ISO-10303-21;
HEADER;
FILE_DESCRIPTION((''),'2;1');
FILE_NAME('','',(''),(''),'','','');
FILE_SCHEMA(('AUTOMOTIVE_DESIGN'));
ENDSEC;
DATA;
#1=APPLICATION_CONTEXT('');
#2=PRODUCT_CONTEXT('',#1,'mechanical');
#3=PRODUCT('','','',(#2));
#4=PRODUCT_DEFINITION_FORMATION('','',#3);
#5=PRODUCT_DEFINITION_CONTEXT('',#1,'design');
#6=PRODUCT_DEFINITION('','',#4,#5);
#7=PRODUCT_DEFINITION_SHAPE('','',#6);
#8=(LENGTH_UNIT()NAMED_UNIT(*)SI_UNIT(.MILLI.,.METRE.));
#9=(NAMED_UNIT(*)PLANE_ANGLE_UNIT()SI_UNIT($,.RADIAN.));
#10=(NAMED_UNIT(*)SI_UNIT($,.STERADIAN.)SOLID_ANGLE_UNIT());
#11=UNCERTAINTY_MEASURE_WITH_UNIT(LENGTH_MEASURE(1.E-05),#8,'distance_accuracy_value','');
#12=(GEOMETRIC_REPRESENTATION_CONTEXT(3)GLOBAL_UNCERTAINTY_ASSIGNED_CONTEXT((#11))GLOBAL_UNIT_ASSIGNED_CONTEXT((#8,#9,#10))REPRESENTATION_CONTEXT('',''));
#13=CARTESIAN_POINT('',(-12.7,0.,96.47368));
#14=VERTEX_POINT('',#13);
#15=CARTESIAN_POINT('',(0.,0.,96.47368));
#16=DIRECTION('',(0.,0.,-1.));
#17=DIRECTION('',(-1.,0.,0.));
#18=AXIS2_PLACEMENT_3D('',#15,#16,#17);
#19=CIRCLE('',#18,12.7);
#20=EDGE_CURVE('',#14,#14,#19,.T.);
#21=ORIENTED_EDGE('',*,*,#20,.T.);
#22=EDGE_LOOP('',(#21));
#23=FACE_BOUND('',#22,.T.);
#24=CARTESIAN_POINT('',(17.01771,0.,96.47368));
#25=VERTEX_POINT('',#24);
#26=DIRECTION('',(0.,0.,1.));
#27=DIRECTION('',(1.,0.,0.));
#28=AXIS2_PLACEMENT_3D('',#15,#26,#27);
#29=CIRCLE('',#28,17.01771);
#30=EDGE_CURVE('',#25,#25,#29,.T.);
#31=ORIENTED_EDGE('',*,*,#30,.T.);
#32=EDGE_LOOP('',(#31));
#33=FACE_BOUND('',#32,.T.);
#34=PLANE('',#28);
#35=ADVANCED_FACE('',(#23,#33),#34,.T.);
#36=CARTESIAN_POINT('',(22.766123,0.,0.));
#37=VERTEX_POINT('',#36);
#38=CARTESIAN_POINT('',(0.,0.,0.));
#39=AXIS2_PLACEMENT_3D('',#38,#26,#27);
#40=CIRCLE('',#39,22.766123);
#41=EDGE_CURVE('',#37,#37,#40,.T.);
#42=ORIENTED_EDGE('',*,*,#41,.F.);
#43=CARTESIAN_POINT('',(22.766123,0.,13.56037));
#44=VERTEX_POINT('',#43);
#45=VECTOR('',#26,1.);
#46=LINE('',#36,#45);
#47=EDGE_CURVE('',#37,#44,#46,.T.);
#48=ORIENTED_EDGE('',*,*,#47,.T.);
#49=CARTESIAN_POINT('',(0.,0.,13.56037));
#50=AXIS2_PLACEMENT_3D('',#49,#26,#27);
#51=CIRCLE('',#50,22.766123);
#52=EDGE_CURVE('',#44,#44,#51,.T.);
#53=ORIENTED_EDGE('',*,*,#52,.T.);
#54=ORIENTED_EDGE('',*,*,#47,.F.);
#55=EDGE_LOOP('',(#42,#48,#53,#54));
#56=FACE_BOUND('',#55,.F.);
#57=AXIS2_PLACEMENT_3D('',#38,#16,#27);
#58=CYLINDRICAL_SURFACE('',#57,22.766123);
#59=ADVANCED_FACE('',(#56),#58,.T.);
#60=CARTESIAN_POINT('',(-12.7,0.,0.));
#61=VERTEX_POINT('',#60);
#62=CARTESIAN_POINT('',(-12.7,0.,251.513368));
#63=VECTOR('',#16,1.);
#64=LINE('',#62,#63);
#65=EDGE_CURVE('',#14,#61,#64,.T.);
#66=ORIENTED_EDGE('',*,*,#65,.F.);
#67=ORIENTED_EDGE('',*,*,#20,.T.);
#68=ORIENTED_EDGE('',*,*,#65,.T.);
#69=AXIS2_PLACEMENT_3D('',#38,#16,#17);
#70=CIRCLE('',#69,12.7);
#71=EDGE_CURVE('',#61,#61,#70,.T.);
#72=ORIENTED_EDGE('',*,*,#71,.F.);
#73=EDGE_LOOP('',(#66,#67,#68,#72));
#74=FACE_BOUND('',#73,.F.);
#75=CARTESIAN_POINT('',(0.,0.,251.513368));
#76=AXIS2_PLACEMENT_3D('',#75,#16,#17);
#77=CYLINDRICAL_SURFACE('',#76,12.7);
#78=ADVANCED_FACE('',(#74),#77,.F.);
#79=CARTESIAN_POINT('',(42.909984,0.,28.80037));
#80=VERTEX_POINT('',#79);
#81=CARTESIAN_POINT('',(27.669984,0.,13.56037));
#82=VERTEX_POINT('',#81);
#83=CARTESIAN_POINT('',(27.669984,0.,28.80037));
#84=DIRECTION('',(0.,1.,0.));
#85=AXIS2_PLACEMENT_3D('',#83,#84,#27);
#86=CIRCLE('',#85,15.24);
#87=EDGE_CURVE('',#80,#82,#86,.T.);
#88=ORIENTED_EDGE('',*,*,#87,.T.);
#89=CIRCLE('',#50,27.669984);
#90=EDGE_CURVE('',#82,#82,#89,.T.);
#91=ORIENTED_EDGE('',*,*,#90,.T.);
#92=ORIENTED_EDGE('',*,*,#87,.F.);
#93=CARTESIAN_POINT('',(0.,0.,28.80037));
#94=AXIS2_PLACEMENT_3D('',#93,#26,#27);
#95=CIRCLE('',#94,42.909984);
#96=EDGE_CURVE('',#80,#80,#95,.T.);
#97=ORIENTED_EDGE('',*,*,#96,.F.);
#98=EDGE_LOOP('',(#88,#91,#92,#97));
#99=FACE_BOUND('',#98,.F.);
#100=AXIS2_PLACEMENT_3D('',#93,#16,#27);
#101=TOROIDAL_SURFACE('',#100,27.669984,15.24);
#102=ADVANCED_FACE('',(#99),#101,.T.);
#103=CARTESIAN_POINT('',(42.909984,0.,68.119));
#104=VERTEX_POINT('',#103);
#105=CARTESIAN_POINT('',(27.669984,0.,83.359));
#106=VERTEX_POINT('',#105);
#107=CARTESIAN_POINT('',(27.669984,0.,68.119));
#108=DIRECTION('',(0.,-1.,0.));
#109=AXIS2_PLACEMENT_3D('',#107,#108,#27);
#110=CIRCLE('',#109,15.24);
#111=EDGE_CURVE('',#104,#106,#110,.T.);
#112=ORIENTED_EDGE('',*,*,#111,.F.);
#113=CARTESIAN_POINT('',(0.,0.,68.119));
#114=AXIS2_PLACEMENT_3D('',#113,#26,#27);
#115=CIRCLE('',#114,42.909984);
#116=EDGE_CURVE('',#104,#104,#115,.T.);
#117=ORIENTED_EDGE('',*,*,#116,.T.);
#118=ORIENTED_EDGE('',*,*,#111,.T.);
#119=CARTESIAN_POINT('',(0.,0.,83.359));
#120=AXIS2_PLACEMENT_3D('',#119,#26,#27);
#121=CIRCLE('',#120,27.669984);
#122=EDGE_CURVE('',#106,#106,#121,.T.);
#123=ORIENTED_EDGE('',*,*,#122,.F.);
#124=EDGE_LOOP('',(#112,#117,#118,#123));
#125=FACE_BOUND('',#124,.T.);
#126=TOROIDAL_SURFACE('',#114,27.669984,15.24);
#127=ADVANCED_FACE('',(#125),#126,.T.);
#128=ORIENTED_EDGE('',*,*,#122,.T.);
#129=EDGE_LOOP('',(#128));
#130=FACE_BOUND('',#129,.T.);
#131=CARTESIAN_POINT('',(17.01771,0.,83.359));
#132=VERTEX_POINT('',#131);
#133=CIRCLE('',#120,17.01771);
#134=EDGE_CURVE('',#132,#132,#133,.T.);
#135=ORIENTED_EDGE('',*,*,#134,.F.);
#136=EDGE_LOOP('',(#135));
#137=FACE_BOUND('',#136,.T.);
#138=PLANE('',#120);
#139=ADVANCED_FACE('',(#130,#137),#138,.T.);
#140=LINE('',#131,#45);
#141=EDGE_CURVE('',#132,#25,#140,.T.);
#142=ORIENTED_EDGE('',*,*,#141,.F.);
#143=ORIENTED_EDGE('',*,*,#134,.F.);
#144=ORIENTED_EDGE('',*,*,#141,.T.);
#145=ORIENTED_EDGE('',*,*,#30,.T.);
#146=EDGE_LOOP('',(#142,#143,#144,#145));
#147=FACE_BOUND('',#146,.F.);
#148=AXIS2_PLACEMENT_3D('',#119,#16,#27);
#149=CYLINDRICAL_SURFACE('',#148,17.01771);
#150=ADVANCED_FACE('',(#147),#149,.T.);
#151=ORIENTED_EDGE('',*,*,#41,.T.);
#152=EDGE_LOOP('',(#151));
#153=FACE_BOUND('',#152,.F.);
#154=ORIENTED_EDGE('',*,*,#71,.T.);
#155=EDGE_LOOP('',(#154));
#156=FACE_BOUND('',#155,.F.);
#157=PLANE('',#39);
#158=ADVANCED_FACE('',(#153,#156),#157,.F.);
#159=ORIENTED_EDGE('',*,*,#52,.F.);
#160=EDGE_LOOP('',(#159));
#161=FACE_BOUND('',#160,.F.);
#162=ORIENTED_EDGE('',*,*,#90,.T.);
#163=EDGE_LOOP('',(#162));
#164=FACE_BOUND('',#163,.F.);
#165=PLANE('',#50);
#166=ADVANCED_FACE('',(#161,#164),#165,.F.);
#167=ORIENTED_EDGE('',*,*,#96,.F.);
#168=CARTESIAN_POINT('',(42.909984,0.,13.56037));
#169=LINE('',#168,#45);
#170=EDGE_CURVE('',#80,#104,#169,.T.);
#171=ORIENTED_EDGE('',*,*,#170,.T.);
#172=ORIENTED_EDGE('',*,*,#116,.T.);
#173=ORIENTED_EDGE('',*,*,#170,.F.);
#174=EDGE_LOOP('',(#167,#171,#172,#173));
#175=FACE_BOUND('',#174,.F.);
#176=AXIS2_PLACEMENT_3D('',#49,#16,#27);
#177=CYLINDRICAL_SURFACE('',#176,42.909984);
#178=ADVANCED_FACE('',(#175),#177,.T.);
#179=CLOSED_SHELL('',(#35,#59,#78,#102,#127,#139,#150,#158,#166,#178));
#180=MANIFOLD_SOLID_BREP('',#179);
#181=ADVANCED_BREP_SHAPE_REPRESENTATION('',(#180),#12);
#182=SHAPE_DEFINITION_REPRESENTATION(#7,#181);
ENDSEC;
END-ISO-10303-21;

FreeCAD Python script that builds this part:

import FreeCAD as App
import Part
import Sketcher

V = App.Vector
Q = App.Units.Quantity


def edges_at(feature, points):
    """Names of the edges that pass closest to the given points."""
    edges = feature.Shape.Edges
    near = lambda p: min(range(len(edges)), key=lambda i: edges[i].distToShape(Part.Vertex(*p))[0])
    return sorted({f"Edge{near(p) + 1}" for p in points})

doc = App.newDocument("Part")
params = doc.addObject("Spreadsheet::Sheet", "Params")
for row, (alias, value) in enumerate([
    ("pad1_length", "13.56037 mm"),
    ("pad2_length", "69.79863 mm"),
    ("pad3_length", "13.11468 mm"),
    ("fillet_radius", "0.6 in"),
    ("sketch4_diameter", "1 in"),
    ("hole_diameter", "1 in"),
], start=1):
    params.set(f"A{row}", alias)
    params.set(f"B{row}", "=" + value)
    params.setAlias(f"B{row}", alias)

body = doc.addObject("PartDesign::Body", "Body")

sketch1 = body.newObject("Sketcher::SketchObject", "Sketch")
sketch1.AttachmentSupport = (doc.getObject("XY_Plane"), [""])
sketch1.MapMode = "FlatFace"
sketch1.addGeometry(Part.Circle(V(0, 0, 0), V(0, 0, 1), 22.766123), False)
sketch1.addConstraint(Sketcher.Constraint("Coincident", 0, 3, -1, 1))
sketch1.addConstraint(Sketcher.Constraint("Diameter", 0, 45.532246))
pad1 = body.newObject("PartDesign::Pad", "Pad")
pad1.Profile = sketch1
pad1.setExpression("Length", "Params.pad1_length")

sketch2 = body.newObject("Sketcher::SketchObject", "Sketch001")
sketch2.AttachmentSupport = (doc.getObject("XY_Plane"), [""])
sketch2.MapMode = "FlatFace"
sketch2.AttachmentOffset = App.Placement(V(0, 0, 13.56037), App.Rotation())
sketch2.addGeometry(Part.Circle(V(0, 0, 0), V(0, 0, 1), 42.909984), False)
sketch2.addConstraint(Sketcher.Constraint("Coincident", 0, 3, -1, 1))
sketch2.addConstraint(Sketcher.Constraint("Diameter", 0, 85.819968))
pad2 = body.newObject("PartDesign::Pad", "Pad001")
pad2.Profile = sketch2
pad2.setExpression("Length", "Params.pad2_length")

sketch3 = body.newObject("Sketcher::SketchObject", "Sketch002")
sketch3.AttachmentSupport = (doc.getObject("XY_Plane"), [""])
sketch3.MapMode = "FlatFace"
sketch3.AttachmentOffset = App.Placement(V(0, 0, 83.359), App.Rotation())
sketch3.addGeometry(Part.Circle(V(0, 0, 0), V(0, 0, 1), 17.01771), False)
sketch3.addConstraint(Sketcher.Constraint("Coincident", 0, 3, -1, 1))
sketch3.addConstraint(Sketcher.Constraint("Diameter", 0, 34.03542))
pad3 = body.newObject("PartDesign::Pad", "Pad002")
pad3.Profile = sketch3
pad3.setExpression("Length", "Params.pad3_length")
doc.recompute()

fillet = body.newObject("PartDesign::Fillet", "Fillet")
fillet.Base = (pad3, edges_at(pad3, [(-42.91, 0, 83.359), (-42.91, 0, 13.56)]))
fillet.setExpression("Radius", "Params.fillet_radius")

sketch4 = body.newObject("Sketcher::SketchObject", "Sketch003")
sketch4.AttachmentSupport = (doc.getObject("XY_Plane"), [""])
sketch4.MapMode = "FlatFace"
sketch4.AttachmentOffset = App.Placement(V(0, 0, 96.47368), App.Rotation())
sketch4.addGeometry(Part.Circle(V(0, 0, 0), V(0, 0, 1), 12.7), False)
sketch4.addConstraint(Sketcher.Constraint("Coincident", 0, 3, -1, 1))
sketch4.addConstraint(Sketcher.Constraint("Diameter", 0, Q("1 in")))
sketch4.setExpression("Constraints[1]", "Params.sketch4_diameter")
doc.recompute()
hole = body.newObject("PartDesign::Hole", "Hole")
hole.Profile = sketch4
hole.ThreadType = "None"
hole.setExpression("Diameter", "Params.hole_diameter")
hole.DepthType = "ThroughAll"

doc.recompute()
